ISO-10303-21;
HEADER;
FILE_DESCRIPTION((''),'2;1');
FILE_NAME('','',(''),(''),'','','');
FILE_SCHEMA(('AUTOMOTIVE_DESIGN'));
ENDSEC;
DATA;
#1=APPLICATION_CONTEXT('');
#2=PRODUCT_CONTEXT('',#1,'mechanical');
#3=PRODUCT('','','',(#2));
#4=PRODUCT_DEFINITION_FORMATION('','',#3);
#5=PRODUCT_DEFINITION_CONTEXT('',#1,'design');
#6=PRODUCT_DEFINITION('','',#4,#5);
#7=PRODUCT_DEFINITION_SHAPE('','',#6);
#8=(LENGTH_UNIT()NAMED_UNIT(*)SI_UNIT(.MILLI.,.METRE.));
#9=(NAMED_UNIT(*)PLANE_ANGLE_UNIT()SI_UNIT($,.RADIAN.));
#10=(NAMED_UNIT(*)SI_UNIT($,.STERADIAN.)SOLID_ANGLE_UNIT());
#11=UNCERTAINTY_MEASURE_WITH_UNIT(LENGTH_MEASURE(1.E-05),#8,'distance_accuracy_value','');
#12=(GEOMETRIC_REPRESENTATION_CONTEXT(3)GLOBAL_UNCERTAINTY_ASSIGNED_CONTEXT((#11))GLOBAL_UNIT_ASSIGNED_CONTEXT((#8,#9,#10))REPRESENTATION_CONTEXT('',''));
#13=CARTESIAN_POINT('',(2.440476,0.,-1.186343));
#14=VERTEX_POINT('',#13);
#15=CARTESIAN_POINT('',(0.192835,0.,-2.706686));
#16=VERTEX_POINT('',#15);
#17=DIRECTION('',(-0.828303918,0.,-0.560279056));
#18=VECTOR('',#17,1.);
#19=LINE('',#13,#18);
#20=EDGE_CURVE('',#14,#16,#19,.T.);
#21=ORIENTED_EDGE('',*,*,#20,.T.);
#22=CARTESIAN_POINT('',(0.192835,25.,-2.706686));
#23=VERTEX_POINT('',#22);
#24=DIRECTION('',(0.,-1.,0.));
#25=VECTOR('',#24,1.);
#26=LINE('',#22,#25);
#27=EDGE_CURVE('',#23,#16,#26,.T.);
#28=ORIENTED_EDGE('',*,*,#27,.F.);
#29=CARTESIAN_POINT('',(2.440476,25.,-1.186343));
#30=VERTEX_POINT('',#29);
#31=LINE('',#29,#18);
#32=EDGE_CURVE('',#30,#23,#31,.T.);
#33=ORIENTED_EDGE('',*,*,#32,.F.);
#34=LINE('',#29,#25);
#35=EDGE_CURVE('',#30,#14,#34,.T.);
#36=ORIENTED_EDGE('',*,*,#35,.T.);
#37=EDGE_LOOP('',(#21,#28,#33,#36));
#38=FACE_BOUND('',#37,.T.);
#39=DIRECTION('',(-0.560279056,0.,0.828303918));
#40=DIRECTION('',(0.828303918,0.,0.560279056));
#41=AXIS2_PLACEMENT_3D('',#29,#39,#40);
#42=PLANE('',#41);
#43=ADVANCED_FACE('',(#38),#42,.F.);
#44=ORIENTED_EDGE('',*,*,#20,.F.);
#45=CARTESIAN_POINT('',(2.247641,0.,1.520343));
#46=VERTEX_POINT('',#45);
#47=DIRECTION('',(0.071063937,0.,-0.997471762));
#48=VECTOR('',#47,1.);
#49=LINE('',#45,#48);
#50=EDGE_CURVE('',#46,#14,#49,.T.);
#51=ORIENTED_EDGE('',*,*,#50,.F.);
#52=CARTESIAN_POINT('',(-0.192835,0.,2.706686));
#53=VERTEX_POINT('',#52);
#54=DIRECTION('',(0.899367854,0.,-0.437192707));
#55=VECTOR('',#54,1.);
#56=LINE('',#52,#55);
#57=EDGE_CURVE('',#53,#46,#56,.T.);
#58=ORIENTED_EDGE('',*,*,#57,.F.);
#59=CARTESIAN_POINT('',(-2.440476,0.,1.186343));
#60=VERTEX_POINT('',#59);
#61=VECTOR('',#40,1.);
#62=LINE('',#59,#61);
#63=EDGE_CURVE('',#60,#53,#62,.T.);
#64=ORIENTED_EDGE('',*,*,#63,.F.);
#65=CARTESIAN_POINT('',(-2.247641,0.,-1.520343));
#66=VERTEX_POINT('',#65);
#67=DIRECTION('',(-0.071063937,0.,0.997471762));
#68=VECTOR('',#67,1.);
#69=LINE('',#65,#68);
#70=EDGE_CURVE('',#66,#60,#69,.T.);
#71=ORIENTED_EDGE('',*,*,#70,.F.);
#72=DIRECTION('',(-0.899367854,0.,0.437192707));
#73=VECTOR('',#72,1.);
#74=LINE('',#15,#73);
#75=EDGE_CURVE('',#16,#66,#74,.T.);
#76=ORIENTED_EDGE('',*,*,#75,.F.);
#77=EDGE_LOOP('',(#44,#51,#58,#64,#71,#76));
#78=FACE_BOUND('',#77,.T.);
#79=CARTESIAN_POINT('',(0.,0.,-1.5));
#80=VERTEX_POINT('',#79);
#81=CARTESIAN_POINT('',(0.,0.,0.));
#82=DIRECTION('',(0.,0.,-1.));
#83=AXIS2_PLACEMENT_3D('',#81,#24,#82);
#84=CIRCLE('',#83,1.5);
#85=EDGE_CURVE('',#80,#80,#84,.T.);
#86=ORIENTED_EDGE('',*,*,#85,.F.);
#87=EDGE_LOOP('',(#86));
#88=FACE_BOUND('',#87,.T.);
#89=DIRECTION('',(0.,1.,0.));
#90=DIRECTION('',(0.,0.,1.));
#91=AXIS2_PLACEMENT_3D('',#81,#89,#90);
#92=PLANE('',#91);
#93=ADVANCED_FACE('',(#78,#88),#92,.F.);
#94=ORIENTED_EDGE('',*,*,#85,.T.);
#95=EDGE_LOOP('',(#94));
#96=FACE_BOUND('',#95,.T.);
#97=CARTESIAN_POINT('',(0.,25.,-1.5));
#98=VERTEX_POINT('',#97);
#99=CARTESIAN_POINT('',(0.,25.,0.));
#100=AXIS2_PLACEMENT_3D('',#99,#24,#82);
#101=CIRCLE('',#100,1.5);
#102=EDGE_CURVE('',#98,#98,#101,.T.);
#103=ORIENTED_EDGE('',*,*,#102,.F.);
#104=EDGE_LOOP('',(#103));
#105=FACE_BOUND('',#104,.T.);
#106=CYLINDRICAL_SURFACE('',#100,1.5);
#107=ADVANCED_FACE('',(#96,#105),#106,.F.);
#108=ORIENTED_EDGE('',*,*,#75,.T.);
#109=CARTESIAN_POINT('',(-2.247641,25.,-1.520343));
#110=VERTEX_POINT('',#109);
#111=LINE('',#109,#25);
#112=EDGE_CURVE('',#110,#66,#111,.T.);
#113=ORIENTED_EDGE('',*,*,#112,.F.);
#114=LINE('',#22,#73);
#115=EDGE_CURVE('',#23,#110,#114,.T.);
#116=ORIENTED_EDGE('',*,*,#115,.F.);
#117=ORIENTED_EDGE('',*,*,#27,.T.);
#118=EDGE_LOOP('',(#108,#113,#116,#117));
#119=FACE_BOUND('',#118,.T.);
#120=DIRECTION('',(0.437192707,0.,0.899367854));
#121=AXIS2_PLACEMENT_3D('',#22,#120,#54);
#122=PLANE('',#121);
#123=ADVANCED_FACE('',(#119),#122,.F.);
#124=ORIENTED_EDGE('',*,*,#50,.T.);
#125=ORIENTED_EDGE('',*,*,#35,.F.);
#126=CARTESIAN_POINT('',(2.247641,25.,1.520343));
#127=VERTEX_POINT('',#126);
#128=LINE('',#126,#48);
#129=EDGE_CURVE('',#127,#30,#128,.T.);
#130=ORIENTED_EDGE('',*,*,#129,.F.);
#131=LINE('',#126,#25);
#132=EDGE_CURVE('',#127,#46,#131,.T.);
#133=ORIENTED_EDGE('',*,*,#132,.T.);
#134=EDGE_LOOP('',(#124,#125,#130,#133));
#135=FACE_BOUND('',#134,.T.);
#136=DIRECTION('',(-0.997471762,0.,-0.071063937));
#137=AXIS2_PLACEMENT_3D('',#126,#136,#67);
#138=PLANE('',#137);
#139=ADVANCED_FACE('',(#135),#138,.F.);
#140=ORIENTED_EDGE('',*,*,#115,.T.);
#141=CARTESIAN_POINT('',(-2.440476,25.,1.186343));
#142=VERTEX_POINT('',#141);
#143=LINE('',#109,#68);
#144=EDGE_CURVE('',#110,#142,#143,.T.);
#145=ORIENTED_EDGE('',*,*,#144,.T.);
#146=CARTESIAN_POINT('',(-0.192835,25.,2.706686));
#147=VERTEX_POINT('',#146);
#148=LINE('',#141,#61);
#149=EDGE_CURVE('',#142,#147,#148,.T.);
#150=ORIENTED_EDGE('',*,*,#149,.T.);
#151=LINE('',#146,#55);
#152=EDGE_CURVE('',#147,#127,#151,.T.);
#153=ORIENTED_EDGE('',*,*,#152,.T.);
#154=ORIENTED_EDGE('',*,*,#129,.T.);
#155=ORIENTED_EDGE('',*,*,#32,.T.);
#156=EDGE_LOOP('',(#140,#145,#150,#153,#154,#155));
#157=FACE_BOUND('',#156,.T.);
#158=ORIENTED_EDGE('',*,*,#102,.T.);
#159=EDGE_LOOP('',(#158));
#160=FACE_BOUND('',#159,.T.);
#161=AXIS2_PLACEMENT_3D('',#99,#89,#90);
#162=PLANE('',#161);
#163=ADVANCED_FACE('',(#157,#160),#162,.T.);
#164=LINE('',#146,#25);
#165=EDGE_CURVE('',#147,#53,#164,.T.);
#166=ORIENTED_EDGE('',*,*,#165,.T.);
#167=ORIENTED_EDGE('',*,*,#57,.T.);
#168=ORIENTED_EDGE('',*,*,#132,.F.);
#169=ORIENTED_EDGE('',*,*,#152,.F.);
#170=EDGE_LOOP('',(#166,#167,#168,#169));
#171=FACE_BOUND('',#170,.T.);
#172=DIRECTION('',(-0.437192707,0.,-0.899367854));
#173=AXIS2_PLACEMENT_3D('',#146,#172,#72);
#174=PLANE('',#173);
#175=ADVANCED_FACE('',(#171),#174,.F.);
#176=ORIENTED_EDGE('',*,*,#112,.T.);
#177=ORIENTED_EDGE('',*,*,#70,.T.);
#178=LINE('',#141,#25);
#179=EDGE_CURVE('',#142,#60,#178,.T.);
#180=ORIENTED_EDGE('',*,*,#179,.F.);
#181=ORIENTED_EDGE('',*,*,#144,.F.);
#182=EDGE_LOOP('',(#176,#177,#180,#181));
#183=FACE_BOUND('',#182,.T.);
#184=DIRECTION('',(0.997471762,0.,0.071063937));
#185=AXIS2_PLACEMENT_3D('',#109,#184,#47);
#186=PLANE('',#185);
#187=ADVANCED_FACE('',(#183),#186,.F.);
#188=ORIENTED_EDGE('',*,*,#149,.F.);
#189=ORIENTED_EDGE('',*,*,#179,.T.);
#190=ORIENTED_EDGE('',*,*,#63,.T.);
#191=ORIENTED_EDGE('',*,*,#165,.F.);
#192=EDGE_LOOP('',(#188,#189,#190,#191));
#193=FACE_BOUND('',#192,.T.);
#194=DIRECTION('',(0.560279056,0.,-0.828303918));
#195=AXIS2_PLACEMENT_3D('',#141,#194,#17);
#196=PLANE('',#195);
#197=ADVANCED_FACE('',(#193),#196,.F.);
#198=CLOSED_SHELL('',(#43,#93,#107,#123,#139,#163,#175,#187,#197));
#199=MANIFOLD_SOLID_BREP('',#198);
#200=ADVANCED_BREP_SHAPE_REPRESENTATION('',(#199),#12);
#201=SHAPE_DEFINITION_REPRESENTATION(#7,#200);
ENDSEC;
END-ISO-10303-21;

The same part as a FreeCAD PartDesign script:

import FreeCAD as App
import Part
import Sketcher

V = App.Vector


def add_polygon(sketch, points):
    """Adds a closed chain of lines whose ends are joined by coincident constraints."""
    first, n = sketch.GeometryCount, len(points)
    for a, b in zip(points, points[1:] + points[:1]):
        sketch.addGeometry(Part.LineSegment(App.Vector(*a, 0), App.Vector(*b, 0)), False)
    for i in range(n):
        sketch.addConstraint(Sketcher.Constraint("Coincident", first + i, 2, first + (i + 1) % n, 1))

doc = App.newDocument("Part")
body = doc.addObject("PartDesign::Body", "Body")

# Sketch on XZ plane
sketch1 = body.newObject("Sketcher::SketchObject", "Sketch")
sketch1.AttachmentSupport = (doc.getObject("XZ_Plane"), [""])
sketch1.MapMode = "FlatFace"
add_polygon(sketch1, [(2.440476, -1.186343), (0.192835, -2.706686), (-2.247641, -1.520343), (-2.440476, 1.186343), (-0.192835, 2.706686), (2.247641, 1.520343)])  # lines 0-5
sketch1.addConstraint([
    Sketcher.Constraint("Symmetric", 0, 2, 3, 2, -1, 1),
    Sketcher.Constraint("Symmetric", 1, 2, 4, 2, -1, 1),
    Sketcher.Constraint("Symmetric", 2, 2, 5, 2, -1, 1),
    Sketcher.Constraint("Equal", 0, 1),
    Sketcher.Constraint("Equal", 1, 2),
    Sketcher.Constraint("DistanceY", 2, 2, 4, 2, 0.334001),
    Sketcher.Constraint("DistanceX", 1, 2, -1, 1, 2.247641),
    Sketcher.Constraint("DistanceX", 2, 2, 0, 2, 2.633312),
    Sketcher.Constraint("DistanceY", 0, 2, 2, 2, 3.893028),
])
pad1 = body.newObject("PartDesign::Pad", "Pad")
pad1.Profile = sketch1
pad1.Length = 25
pad1.Reversed = True

# Sketch on XZ plane
sketch2 = body.newObject("Sketcher::SketchObject", "Sketch001")
sketch2.AttachmentSupport = (doc.getObject("XZ_Plane"), [""])
sketch2.MapMode = "FlatFace"
sketch2.addGeometry(Part.Circle(V(0, 0, 0), V(0, 0, 1), 1.5), False)
sketch2.addConstraint([
    Sketcher.Constraint("Coincident", 0, 3, -1, 1),
    Sketcher.Constraint("Diameter", 0, 3.0),
])
pocket1 = body.newObject("PartDesign::Pocket", "Pocket")
pocket1.Profile = sketch2
pocket1.Type = "ThroughAll"

doc.recompute()
